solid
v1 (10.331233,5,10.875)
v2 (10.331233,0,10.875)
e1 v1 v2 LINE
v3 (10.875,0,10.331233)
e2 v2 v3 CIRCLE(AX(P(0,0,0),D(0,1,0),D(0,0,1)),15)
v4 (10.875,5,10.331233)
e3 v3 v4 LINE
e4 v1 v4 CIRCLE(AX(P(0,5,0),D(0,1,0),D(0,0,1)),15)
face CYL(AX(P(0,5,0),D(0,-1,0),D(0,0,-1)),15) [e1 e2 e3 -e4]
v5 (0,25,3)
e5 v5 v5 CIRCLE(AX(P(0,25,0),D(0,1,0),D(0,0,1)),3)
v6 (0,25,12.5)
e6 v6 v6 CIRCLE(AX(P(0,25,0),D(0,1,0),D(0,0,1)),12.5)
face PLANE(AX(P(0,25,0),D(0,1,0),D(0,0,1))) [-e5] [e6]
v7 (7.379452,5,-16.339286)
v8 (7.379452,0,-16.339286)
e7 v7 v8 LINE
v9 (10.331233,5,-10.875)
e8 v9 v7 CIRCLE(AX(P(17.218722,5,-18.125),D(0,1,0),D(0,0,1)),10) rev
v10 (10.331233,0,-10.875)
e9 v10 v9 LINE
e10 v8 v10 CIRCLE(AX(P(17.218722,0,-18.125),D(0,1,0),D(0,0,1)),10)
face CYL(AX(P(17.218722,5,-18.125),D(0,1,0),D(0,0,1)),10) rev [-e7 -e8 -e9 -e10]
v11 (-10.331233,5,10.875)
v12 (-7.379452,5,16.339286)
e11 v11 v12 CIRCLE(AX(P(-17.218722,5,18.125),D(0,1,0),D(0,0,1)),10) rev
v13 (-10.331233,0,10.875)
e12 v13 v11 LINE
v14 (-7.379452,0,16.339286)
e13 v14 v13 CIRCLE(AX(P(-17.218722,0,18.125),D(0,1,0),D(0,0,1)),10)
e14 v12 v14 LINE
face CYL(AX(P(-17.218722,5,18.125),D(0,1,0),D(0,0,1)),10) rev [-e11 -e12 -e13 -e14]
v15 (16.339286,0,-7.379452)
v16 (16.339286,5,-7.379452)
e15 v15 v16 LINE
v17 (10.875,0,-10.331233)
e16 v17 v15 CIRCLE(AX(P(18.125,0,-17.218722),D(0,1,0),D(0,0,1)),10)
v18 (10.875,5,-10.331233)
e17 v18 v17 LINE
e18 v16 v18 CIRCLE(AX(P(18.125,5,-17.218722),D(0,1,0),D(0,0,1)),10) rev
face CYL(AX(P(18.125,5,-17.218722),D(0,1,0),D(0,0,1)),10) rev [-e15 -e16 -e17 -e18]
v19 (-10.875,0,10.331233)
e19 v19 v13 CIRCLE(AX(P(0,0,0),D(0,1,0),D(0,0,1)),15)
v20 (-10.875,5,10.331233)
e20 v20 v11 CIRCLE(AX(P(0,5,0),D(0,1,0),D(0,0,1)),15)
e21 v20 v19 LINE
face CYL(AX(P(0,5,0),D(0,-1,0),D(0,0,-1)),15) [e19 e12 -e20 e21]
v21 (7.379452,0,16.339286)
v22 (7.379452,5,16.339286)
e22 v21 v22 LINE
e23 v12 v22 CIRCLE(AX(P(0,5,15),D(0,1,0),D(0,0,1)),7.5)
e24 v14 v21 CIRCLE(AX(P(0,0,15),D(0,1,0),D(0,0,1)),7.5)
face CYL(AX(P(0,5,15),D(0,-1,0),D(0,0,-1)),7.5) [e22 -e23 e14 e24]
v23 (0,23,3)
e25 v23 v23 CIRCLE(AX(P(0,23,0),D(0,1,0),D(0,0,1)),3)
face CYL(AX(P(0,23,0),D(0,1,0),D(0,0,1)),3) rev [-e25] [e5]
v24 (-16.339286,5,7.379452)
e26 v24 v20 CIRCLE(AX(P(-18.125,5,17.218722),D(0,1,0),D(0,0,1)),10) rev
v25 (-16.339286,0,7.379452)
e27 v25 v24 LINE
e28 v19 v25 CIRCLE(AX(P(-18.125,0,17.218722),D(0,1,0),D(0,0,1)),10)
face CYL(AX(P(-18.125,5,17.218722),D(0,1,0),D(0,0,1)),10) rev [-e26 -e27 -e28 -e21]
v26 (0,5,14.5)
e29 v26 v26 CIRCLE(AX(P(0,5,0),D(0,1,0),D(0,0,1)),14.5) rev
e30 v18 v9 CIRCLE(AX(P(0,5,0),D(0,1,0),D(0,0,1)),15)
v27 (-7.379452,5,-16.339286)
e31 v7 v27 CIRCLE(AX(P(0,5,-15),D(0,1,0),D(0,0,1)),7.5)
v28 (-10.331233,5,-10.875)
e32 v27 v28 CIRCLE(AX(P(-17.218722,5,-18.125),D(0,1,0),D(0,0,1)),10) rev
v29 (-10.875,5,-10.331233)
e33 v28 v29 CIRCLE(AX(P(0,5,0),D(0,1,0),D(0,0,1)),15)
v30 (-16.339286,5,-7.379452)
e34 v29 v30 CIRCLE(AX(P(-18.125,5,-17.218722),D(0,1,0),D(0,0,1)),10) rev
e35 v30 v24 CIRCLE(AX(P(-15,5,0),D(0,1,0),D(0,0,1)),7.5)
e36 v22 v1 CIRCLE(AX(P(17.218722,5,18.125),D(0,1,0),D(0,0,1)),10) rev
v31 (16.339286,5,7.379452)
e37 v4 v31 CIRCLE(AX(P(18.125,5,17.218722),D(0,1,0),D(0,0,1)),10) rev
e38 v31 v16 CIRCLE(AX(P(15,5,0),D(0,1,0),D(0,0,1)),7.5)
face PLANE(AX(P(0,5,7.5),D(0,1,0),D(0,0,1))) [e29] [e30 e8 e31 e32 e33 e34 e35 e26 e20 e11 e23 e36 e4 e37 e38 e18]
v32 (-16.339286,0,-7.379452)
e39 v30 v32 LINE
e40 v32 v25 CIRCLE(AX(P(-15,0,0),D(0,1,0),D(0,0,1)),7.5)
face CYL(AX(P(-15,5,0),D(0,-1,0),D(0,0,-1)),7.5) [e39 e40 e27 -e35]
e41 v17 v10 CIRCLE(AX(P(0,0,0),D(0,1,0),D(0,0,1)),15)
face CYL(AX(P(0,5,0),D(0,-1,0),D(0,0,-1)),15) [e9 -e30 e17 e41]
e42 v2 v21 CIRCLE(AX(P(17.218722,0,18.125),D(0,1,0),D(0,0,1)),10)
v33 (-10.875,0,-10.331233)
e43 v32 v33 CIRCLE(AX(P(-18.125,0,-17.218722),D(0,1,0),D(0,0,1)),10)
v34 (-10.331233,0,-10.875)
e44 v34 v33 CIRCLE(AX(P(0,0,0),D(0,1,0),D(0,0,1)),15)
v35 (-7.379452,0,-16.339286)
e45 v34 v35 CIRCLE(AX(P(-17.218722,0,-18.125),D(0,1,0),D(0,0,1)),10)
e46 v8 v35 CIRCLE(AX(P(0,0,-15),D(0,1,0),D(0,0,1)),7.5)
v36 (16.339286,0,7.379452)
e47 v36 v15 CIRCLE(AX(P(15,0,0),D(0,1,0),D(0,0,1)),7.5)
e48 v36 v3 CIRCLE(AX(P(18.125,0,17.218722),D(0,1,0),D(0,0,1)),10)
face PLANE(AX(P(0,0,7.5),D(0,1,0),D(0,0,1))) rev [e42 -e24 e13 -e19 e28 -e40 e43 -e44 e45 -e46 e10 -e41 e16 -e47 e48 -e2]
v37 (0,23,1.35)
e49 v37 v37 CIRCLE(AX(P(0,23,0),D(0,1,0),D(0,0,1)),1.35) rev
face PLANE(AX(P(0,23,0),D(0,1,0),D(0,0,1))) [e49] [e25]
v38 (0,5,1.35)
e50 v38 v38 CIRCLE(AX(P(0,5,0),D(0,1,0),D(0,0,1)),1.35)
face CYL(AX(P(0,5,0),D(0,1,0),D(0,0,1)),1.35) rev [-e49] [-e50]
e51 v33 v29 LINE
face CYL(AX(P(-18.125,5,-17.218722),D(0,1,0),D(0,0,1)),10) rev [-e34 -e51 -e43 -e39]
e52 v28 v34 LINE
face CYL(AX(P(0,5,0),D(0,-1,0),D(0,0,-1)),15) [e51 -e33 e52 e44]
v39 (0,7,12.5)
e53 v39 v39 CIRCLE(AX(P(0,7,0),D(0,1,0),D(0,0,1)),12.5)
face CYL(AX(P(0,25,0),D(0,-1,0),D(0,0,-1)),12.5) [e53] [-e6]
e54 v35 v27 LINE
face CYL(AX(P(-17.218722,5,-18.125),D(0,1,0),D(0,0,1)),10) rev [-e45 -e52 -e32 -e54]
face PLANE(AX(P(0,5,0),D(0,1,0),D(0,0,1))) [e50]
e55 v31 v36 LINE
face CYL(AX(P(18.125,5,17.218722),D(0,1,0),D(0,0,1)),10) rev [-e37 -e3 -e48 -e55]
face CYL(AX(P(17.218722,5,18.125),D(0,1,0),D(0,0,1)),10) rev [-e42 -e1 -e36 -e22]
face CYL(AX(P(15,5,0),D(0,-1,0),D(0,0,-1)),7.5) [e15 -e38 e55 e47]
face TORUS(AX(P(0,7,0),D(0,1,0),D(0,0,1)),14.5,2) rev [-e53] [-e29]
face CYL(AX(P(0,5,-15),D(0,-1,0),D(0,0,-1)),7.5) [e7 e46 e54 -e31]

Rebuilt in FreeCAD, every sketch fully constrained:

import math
import FreeCAD as App
import Part
import Sketcher
from FreeCAD import Vector


def edges_at(feature, points):
    """Names of the edges that pass closest to the given points."""
    edges = feature.Shape.Edges
    near = lambda p: min(range(len(edges)), key=lambda i: edges[i].distToShape(Part.Vertex(*p))[0])
    return sorted({f"Edge{near(p) + 1}" for p in points})

doc = App.newDocument("Part")
body = doc.addObject("PartDesign::Body", "Body")

# Sketch on XZ plane
sketch1 = body.newObject("Sketcher::SketchObject", "Sketch")
sketch1.AttachmentSupport = (doc.getObject("XZ_Plane"), [""])
sketch1.MapMode = "FlatFace"
sketch1.addGeometry([
    Part.ArcOfCircle(Part.Circle(Vector(0, 0, 0), Vector(0, 0, 1), 15), math.radians(119), math.radians(151)),  # 0
    Part.ArcOfCircle(Part.Circle(Vector(0, 15, 0), Vector(0, 0, 1), 8), math.radians(-14), math.radians(194)),  # 1
    Part.ArcOfCircle(Part.Circle(Vector(0, 0, 0), Vector(0, 0, 1), 15), math.radians(29), math.radians(61)),  # 2
    Part.ArcOfCircle(Part.Circle(Vector(15, 0, 0), Vector(0, 0, 1), 8), math.radians(-104), math.radians(104)),  # 3
    Part.ArcOfCircle(Part.Circle(Vector(0, 0, 0), Vector(0, 0, 1), 15), math.radians(-61), math.radians(-29)),  # 4
    Part.ArcOfCircle(Part.Circle(Vector(0, -15, 0), Vector(0, 0, 1), 8), math.radians(166), math.radians(374)),  # 5
    Part.ArcOfCircle(Part.Circle(Vector(0, 0, 0), Vector(0, 0, 1), 15), math.radians(-151), math.radians(-119)),  # 6
    Part.ArcOfCircle(Part.Circle(Vector(-15, 0, 0), Vector(0, 0, 1), 8), math.radians(76), math.radians(284)),  # 7
], False)
sketch1.addConstraint([
    Sketcher.Constraint("Coincident", 0, 1, 1, 2),
    Sketcher.Constraint("Coincident", 1, 1, 2, 2),
    Sketcher.Constraint("Coincident", 2, 1, 3, 2),
    Sketcher.Constraint("Coincident", 3, 1, 4, 2),
    Sketcher.Constraint("Coincident", 4, 1, 5, 2),
    Sketcher.Constraint("Coincident", 5, 1, 6, 2),
    Sketcher.Constraint("Coincident", 6, 1, 7, 2),
    Sketcher.Constraint("Coincident", 7, 1, 0, 2),
    Sketcher.Constraint("Coincident", 0, 3, -1, 1),
    Sketcher.Constraint("Coincident", 2, 3, -1, 1),
    Sketcher.Constraint("Coincident", 4, 3, -1, 1),
    Sketcher.Constraint("Coincident", 6, 3, -1, 1),
    Sketcher.Constraint("Equal", 0, 2),
    Sketcher.Constraint("Equal", 1, 3),
    Sketcher.Constraint("Equal", 2, 4),
    Sketcher.Constraint("Equal", 3, 5),
    Sketcher.Constraint("Equal", 4, 6),
    Sketcher.Constraint("Equal", 5, 7),
    Sketcher.Constraint("Symmetric", 1, 3, 5, 3, -1, 1),
    Sketcher.Constraint("Symmetric", 3, 3, 7, 3, -1, 1),
    Sketcher.Constraint("PointOnObject", 1, 3, -2),
    Sketcher.Constraint("PointOnObject", 3, 3, -1),
    Sketcher.Constraint("Radius", 0, 15.0),
    Sketcher.Constraint("Radius", 1, 7.5),
    Sketcher.Constraint("DistanceY", -1, 1, 1, 3, 15.0),
    Sketcher.Constraint("DistanceX", -1, 1, 3, 3, 15.0),
])
pad1 = body.newObject("PartDesign::Pad", "Pad")
pad1.Profile = sketch1
pad1.Length = 5
pad1.Reversed = True
doc.recompute()

fillet = body.newObject("PartDesign::Fillet", "Fillet")
fillet.Base = (pad1, edges_at(pad1, [
    (-13.125, 2.5, 7.262),
    (-13.125, 2.5, -7.262),
    (-7.262, 2.5, -13.125),
    (7.262, 2.5, -13.125),
    (13.125, 2.5, -7.262),
    (13.125, 2.5, 7.262),
    (7.262, 2.5, 13.125),
    (-7.262, 2.5, 13.125),
]))
fillet.Radius = 10

# Sketch on XZ plane
sketch2 = body.newObject("Sketcher::SketchObject", "Sketch001")
sketch2.AttachmentSupport = (doc.getObject("XZ_Plane"), [""])
sketch2.MapMode = "FlatFace"
sketch2.AttachmentOffset = App.Placement(Vector(0, 0, -5), App.Rotation())
sketch2.addGeometry(Part.Circle(Vector(0, 0, 0), Vector(0, 0, 1), 12), False)
sketch2.addConstraint([
    Sketcher.Constraint("Coincident", 0, 3, -1, 1),
    Sketcher.Constraint("Diameter", 0, 25.0),
])
pad2 = body.newObject("PartDesign::Pad", "Pad001")
pad2.Profile = sketch2
pad2.Length = 20
pad2.Reversed = True

# Sketch on XZ plane
sketch3 = body.newObject("Sketcher::SketchObject", "Sketch002")
sketch3.AttachmentSupport = (doc.getObject("XZ_Plane"), [""])
sketch3.MapMode = "FlatFace"
sketch3.AttachmentOffset = App.Placement(Vector(0, 0, -25), App.Rotation())
sketch3.addGeometry(Part.Circle(Vector(0, 0, 0), Vector(0, 0, 1), 1.4), False)
sketch3.addConstraint([
    Sketcher.Constraint("Coincident", 0, 3, -1, 1),
    Sketcher.Constraint("Diameter", 0, 2.7),
])
pocket1 = body.newObject("PartDesign::Pocket", "Pocket")
pocket1.Profile = sketch3
pocket1.Length = 20
pocket1.Reversed = True

# Sketch on XZ plane
sketch4 = body.newObject("Sketcher::SketchObject", "Sketch003")
sketch4.AttachmentSupport = (doc.getObject("XZ_Plane"), [""])
sketch4.MapMode = "FlatFace"
sketch4.AttachmentOffset = App.Placement(Vector(0, 0, -25), App.Rotation())
sketch4.addGeometry(Part.Circle(Vector(0, 0, 0), Vector(0, 0, 1), 3), False)
sketch4.addConstraint([
    Sketcher.Constraint("Coincident", 0, 3, -1, 1),
    Sketcher.Constraint("Diameter", 0, 6.0),
])
pocket2 = body.newObject("PartDesign::Pocket", "Pocket001")
pocket2.Profile = sketch4
pocket2.Length = 2
pocket2.Reversed = True
doc.recompute()

fillet2 = body.newObject("PartDesign::Fillet", "Fillet001")
fillet2.Base = (pocket2, edges_at(pocket2, [(0, 5, -12.5)]))
fillet2.Radius = 2

doc.recompute()
